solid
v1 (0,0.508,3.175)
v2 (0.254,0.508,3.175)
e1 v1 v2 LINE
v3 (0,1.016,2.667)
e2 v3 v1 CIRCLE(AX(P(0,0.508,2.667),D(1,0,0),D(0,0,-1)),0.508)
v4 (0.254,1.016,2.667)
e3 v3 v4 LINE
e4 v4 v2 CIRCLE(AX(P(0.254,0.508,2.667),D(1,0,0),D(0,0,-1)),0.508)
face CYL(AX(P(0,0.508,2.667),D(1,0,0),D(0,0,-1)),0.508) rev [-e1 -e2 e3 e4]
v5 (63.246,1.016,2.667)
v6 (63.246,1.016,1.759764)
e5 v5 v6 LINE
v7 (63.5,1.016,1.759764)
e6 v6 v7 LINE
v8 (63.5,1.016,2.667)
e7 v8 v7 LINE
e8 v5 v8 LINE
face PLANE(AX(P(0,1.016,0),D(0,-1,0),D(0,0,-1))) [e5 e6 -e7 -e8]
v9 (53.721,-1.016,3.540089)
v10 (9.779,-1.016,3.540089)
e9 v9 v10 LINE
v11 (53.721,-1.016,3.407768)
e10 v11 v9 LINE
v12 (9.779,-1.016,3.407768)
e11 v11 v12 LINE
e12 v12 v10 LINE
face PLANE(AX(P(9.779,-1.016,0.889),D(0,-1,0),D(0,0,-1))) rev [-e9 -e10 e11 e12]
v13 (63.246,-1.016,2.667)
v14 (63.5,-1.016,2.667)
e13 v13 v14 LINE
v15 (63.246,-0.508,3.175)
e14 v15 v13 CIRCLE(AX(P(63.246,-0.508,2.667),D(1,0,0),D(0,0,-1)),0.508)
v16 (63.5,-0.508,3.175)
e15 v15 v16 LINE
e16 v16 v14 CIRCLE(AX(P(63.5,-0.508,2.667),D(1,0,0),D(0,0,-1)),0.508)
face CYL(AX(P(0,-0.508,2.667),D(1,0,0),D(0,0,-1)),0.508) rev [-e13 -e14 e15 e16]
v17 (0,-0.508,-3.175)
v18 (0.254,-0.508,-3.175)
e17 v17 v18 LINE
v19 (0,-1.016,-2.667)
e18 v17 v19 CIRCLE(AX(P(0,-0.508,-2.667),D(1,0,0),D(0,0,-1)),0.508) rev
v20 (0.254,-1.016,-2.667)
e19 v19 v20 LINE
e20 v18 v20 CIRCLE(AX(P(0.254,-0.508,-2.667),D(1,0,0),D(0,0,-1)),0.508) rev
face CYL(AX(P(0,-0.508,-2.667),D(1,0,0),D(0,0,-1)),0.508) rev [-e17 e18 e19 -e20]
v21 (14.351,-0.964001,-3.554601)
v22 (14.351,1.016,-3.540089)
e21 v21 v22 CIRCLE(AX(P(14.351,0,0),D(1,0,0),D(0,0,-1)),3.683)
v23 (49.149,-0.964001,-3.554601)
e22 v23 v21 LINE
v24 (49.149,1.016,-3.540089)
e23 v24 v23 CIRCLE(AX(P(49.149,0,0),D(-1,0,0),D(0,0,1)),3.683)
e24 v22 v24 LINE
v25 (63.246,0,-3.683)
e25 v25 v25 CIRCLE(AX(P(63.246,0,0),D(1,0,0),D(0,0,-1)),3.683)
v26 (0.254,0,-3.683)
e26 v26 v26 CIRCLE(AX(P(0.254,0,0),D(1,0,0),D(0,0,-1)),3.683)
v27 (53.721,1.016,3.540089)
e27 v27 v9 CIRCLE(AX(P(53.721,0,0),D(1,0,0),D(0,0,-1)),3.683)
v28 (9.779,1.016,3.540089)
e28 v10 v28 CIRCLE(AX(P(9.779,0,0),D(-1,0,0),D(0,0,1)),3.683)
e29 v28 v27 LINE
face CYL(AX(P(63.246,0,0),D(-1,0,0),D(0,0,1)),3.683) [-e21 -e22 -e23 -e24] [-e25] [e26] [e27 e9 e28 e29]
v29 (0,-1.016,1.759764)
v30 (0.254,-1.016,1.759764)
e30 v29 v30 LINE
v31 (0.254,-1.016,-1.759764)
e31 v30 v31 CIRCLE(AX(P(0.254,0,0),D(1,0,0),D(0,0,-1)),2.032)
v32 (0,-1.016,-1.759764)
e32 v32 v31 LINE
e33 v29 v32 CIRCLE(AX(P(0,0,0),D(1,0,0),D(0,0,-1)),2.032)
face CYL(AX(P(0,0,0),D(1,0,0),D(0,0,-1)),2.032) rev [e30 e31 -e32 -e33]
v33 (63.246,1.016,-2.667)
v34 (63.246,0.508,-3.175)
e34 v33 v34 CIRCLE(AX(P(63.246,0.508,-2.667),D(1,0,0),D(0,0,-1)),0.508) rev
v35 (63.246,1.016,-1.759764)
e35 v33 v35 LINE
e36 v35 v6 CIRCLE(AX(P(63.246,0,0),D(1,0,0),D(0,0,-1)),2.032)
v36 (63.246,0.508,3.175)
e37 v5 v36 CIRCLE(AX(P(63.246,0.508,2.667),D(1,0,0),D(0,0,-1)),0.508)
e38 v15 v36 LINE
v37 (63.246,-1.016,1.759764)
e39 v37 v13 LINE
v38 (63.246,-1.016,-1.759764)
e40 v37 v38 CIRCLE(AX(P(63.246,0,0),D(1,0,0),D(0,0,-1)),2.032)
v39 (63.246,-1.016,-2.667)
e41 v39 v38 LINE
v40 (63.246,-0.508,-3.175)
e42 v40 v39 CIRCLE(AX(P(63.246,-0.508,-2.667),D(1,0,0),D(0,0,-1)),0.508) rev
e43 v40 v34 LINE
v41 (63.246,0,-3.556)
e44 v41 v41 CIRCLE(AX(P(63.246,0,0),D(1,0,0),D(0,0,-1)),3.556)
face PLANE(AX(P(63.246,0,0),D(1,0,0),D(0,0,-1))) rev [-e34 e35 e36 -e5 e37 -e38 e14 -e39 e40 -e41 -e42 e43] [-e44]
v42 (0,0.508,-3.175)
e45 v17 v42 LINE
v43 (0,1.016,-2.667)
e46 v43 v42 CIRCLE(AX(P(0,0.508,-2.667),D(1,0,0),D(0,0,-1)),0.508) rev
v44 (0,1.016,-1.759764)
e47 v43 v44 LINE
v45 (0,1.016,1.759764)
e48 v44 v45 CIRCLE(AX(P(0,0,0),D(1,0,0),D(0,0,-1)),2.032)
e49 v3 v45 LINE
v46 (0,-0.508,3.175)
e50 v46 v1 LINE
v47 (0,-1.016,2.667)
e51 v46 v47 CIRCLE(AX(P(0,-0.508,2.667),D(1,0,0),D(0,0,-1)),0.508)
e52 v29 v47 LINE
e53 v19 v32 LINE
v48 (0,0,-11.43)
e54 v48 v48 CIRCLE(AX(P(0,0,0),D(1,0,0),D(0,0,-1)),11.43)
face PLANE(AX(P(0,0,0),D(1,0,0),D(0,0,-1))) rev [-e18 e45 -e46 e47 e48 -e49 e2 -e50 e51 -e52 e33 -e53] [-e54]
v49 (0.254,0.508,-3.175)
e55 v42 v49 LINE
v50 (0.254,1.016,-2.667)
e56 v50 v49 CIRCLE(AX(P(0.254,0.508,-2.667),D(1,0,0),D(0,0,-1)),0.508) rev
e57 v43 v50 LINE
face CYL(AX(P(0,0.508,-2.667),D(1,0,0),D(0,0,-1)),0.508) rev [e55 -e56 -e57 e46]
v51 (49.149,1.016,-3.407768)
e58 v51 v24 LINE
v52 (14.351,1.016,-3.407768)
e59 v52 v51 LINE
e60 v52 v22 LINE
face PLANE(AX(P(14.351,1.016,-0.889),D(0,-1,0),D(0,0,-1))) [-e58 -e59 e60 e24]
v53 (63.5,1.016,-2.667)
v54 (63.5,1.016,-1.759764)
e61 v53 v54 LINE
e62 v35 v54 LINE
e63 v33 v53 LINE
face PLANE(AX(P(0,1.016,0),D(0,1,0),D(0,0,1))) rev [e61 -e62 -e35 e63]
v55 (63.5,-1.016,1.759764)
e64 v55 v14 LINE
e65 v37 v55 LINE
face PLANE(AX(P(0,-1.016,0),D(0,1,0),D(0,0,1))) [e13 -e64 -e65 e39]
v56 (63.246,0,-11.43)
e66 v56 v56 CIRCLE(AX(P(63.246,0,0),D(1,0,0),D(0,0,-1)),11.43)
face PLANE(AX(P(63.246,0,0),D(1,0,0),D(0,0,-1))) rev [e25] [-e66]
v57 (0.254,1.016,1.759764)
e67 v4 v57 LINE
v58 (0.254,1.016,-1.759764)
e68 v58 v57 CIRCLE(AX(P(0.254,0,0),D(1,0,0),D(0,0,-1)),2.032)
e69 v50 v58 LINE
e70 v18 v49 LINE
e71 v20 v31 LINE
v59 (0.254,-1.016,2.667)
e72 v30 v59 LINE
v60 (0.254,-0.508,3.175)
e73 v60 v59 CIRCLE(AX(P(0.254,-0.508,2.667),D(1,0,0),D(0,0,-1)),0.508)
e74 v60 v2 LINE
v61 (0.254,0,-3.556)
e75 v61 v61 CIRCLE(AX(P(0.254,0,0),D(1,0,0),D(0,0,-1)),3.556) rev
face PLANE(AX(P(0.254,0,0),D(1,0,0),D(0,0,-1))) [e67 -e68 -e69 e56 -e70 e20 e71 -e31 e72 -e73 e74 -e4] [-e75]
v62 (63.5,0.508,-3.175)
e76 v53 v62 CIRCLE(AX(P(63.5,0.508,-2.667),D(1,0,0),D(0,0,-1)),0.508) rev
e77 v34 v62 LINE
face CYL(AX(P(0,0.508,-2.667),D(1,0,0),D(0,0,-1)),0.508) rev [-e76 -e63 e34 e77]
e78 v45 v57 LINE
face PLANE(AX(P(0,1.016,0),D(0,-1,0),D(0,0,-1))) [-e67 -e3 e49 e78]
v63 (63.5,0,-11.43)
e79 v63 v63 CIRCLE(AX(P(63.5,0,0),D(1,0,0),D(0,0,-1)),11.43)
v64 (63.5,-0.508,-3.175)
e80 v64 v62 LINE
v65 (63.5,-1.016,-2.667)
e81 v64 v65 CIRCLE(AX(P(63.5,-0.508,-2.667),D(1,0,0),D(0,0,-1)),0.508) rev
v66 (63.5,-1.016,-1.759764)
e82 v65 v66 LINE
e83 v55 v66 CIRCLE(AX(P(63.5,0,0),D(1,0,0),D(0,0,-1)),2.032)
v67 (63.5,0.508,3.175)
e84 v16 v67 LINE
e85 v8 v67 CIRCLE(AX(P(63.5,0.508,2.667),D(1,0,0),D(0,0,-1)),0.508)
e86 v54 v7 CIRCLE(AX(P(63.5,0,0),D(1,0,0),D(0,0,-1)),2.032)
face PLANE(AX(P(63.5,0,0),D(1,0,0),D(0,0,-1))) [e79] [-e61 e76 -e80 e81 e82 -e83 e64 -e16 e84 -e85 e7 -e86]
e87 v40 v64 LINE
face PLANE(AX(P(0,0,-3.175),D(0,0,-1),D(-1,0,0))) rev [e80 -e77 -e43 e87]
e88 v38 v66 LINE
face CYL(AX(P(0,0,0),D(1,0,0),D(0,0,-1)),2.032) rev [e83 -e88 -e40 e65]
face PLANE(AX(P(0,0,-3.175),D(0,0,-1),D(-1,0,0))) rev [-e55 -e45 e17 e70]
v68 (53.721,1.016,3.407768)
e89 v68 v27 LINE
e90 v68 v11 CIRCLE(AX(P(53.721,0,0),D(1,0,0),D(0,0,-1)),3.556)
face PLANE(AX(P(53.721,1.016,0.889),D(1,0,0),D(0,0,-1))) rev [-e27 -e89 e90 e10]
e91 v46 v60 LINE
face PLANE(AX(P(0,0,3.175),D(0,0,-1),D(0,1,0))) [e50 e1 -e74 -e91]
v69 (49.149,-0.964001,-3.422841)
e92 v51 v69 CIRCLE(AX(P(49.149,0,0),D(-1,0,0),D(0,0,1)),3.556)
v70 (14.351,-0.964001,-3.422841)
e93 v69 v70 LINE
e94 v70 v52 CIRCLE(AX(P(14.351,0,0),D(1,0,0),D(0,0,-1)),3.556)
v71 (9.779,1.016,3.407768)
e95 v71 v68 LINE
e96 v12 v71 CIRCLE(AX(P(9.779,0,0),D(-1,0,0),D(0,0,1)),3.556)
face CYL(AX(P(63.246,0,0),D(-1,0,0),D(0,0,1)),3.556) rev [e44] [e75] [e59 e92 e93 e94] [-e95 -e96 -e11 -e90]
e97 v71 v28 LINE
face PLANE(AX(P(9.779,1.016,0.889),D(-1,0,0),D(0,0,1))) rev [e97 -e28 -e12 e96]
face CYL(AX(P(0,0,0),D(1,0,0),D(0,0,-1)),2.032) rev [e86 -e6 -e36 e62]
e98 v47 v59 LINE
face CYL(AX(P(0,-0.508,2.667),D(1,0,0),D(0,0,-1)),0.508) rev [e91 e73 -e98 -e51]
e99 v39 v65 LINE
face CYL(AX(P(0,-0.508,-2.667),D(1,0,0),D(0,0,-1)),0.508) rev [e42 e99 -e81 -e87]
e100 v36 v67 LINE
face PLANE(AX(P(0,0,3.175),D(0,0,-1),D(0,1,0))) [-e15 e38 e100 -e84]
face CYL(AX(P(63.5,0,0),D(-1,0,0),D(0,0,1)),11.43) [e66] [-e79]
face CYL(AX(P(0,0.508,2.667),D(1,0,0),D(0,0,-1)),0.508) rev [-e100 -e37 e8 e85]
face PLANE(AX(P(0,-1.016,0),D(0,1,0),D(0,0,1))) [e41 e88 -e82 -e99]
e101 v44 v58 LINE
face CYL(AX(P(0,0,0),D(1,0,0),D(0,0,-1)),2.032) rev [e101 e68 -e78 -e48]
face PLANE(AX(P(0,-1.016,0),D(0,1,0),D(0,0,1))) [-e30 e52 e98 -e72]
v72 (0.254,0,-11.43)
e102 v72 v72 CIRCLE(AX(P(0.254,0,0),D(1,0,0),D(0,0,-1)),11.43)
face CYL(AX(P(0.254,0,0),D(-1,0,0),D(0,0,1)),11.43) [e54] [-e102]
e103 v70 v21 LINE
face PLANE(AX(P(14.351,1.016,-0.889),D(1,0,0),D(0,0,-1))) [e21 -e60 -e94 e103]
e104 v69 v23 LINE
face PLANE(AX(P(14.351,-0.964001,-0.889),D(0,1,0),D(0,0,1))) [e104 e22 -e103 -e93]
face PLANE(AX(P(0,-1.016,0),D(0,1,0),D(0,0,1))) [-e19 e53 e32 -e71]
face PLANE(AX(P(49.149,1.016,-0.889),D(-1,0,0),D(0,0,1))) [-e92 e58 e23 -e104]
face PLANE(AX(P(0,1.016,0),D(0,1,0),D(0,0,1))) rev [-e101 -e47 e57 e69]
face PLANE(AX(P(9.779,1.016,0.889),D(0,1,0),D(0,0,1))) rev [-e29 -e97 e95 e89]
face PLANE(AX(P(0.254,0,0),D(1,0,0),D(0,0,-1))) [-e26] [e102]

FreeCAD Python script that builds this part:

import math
import FreeCAD as App
import Part
import Sketcher
from FreeCAD import Vector
Q = App.Units.Quantity


def add_polygon(sketch, points):
    """Adds a closed chain of lines whose ends are joined by coincident constraints."""
    first, n = sketch.GeometryCount, len(points)
    for a, b in zip(points, points[1:] + points[:1]):
        sketch.addGeometry(Part.LineSegment(App.Vector(*a, 0), App.Vector(*b, 0)), False)
    for i in range(n):
        sketch.addConstraint(Sketcher.Constraint("Coincident", first + i, 2, first + (i + 1) % n, 1))

doc = App.newDocument("Part")
body = doc.addObject("PartDesign::Body", "Body")

sketch1 = body.newObject("Sketcher::SketchObject", "Sketch")
sketch1.AttachmentSupport = (doc.getObject("YZ_Plane"), [""])
sketch1.MapMode = "FlatFace"
sketch1.addGeometry(Part.Circle(Vector(0, 0, 0), Vector(0, 0, 1), 11), False)
sketch1.addConstraint([
    Sketcher.Constraint("Coincident", 0, 3, -1, 1),
    Sketcher.Constraint("Diameter", 0, Q("0.9 in")),
])
pad1 = body.newObject("PartDesign::Pad", "Pad")
pad1.Profile = sketch1
pad1.Length = Q("0.01 in")

sketch2 = body.newObject("Sketcher::SketchObject", "Sketch001")
sketch2.AttachmentSupport = (doc.getObject("YZ_Plane"), [""])
sketch2.MapMode = "FlatFace"
sketch2.AttachmentOffset = App.Placement(Vector(0, 0, 0.01 * 25.4), App.Rotation())
sketch2.addGeometry([
    Part.Circle(Vector(0, 0, 0), Vector(0, 0, 1), 3.7),
    Part.Circle(Vector(0, 0, 0), Vector(0, 0, 1), 3.6),
], False)
sketch2.addConstraint([
    Sketcher.Constraint("Coincident", 0, 3, -1, 1),
    Sketcher.Constraint("Coincident", 1, 3, -1, 1),
    Sketcher.Constraint("Diameter", 0, Q("0.29 in")),
    Sketcher.Constraint("Diameter", 1, Q("0.28 in")),
])
pad2 = body.newObject("PartDesign::Pad", "Pad001")
pad2.Profile = sketch2
pad2.Length = Q("2.48 in")

sketch3 = body.newObject("Sketcher::SketchObject", "Sketch002")
sketch3.AttachmentSupport = (doc.getObject("YZ_Plane"), [""])
sketch3.MapMode = "FlatFace"
sketch3.AttachmentOffset = App.Placement(Vector(0, 0, 2.49 * 25.4), App.Rotation())
sketch3.addGeometry(Part.Circle(Vector(0, 0, 0), Vector(0, 0, 1), 11), False)
sketch3.addConstraint([
    Sketcher.Constraint("Coincident", 0, 3, -1, 1),
    Sketcher.Constraint("Diameter", 0, Q("0.9 in")),
])
pad3 = body.newObject("PartDesign::Pad", "Pad002")
pad3.Profile = sketch3
pad3.Length = Q("0.01 in")

sketch4 = body.newObject("Sketcher::SketchObject", "Sketch003")
sketch4.AttachmentSupport = (doc.getObject("XY_Plane"), [""])
sketch4.MapMode = "FlatFace"
sketch4.AttachmentOffset = App.Placement(Vector(0, 0, 0.145 * 25.4), App.Rotation())
add_polygon(sketch4, [(9.8, 1), (9.8, -1), (53.7, -1), (53.7, 1)])
sketch4.addConstraint([
    Sketcher.Constraint("Vertical", 0),
    Sketcher.Constraint("Horizontal", 1),
    Sketcher.Constraint("Vertical", 2),
    Sketcher.Constraint("Horizontal", 3),
    Sketcher.Constraint("DistanceX", 1, 1, 1, 2, Q("1.73 in")),
    Sketcher.Constraint("DistanceY", 0, 2, 0, 1, Q("0.08 in")),
    Sketcher.Constraint("DistanceY", 0, 2, -1, 1, Q("0.04 in")),
    Sketcher.Constraint("DistanceX", -1, 1, 0, 2, Q("0.385 in")),
])
pocket1 = body.newObject("PartDesign::Pocket", "Pocket")
pocket1.Profile = sketch4
pocket1.Length = Q("0.11 in")

sketch5 = body.newObject("Sketcher::SketchObject", "Sketch004")
sketch5.AttachmentSupport = (doc.getObject("XY_Plane"), [""])
sketch5.MapMode = "FlatFace"
sketch5.AttachmentOffset = App.Placement(Vector(0, 0, -0.145 * 25.4), App.Rotation())
add_polygon(sketch5, [(14.4, 1), (14.4, -1), (49.1, -1), (49.1, 1)])
sketch5.addConstraint([
    Sketcher.Constraint("Vertical", 0),
    Sketcher.Constraint("Horizontal", 1),
    Sketcher.Constraint("Vertical", 2),
    Sketcher.Constraint("Horizontal", 3),
    Sketcher.Constraint("DistanceX", 1, 1, 1, 2, Q("1.37 in")),
    Sketcher.Constraint("DistanceY", -1, 1, 2, 2, Q("0.04 in")),
    Sketcher.Constraint("DistanceX", -1, 1, 0, 2, Q("0.565 in")),
    Sketcher.Constraint("DistanceY", 0, 2, 0, 1, Q("1.980001 mm")),
])
pocket2 = body.newObject("PartDesign::Pocket", "Pocket001")
pocket2.Profile = sketch5
pocket2.Length = Q("0.11 in")
pocket2.Reversed = True

sketch6 = body.newObject("Sketcher::SketchObject", "Sketch005")
sketch6.AttachmentSupport = (doc.getObject("YZ_Plane"), [""])
sketch6.MapMode = "FlatFace"
sketch6.AttachmentOffset = App.Placement(Vector(0, 0, 2.5 * 25.4), App.Rotation())
sketch6.addGeometry([
    Part.LineSegment(Vector(-1, 2.7, 0), Vector(-1, 1.8, 0)),
    Part.ArcOfCircle(Part.Circle(Vector(0, 0, 0), Vector(0, 0, 1), 2), math.radians(120), math.radians(240)),
    Part.LineSegment(Vector(-1, -1.8, 0), Vector(-1, -2.7, 0)),
    Part.ArcOfCircle(Part.Circle(Vector(-0.5, -2.7, 0), Vector(0, 0, 1), 0.5), math.radians(180), math.radians(270)),
    Part.LineSegment(Vector(-0.5, -3.2, 0), Vector(0.5, -3.2, 0)),
    Part.ArcOfCircle(Part.Circle(Vector(0.5, -2.7, 0), Vector(0, 0, 1), 0.5), math.radians(-90), math.radians(0)),
    Part.LineSegment(Vector(1, -2.7, 0), Vector(1, -1.8, 0)),
    Part.ArcOfCircle(Part.Circle(Vector(0, 0, 0), Vector(0, 0, 1), 2), math.radians(-60), math.radians(60)),
    Part.LineSegment(Vector(1, 1.8, 0), Vector(1, 2.7, 0)),
    Part.ArcOfCircle(Part.Circle(Vector(0.5, 2.7, 0), Vector(0, 0, 1), 0.5), math.radians(0), math.radians(90)),
    Part.LineSegment(Vector(0.5, 3.2, 0), Vector(-0.5, 3.2, 0)),
    Part.ArcOfCircle(Part.Circle(Vector(-0.5, 2.7, 0), Vector(0, 0, 1), 0.5), math.radians(90), math.radians(180)),
], False)
sketch6.addConstraint([
    Sketcher.Constraint("Coincident", 0, 2, 1, 1),
    Sketcher.Constraint("Coincident", 1, 2, 2, 1),
    Sketcher.Constraint("Tangent", 2, 2, 3, 1),
    Sketcher.Constraint("Tangent", 3, 2, 4, 1),
    Sketcher.Constraint("Tangent", 4, 2, 5, 1),
    Sketcher.Constraint("Tangent", 5, 2, 6, 1),
    Sketcher.Constraint("Coincident", 6, 2, 7, 1),
    Sketcher.Constraint("Coincident", 7, 2, 8, 1),
    Sketcher.Constraint("Tangent", 8, 2, 9, 1),
    Sketcher.Constraint("Tangent", 9, 2, 10, 1),
    Sketcher.Constraint("Tangent", 10, 2, 11, 1),
    Sketcher.Constraint("Tangent", 11, 2, 0, 1),
    Sketcher.Constraint("Vertical", 0),
    Sketcher.Constraint("Vertical", 2),
    Sketcher.Constraint("Horizontal", 4),
    Sketcher.Constraint("Vertical", 6),
    Sketcher.Constraint("Vertical", 8),
    Sketcher.Constraint("Horizontal", 10),
    Sketcher.Constraint("Coincident", 1, 3, -1, 1),
    Sketcher.Constraint("Coincident", 7, 3, -1, 1),
    Sketcher.Constraint("Equal", 3, 5),
    Sketcher.Constraint("Equal", 1, 7),
    Sketcher.Constraint("Equal", 5, 9),
    Sketcher.Constraint("Equal", 9, 11),
    Sketcher.Constraint("Symmetric", 3, 3, 9, 3, -1, 1),
    Sketcher.Constraint("Horizontal", 1, 2, 6, 2),
    Sketcher.Constraint("Horizontal", 0, 2, 7, 2),
    Sketcher.Constraint("Radius", 1, Q("0.08 in")),
    Sketcher.Constraint("Radius", 3, Q("0.02 in")),
    Sketcher.Constraint("DistanceX", 4, 1, 4, 2, Q("0.04 in")),
    Sketcher.Constraint("DistanceY", 5, 3, 9, 3, Q("0.21 in")),
])
pocket3 = body.newObject("PartDesign::Pocket", "Pocket002")
pocket3.Profile = sketch6
pocket3.Type = "ThroughAll"

doc.recompute()
